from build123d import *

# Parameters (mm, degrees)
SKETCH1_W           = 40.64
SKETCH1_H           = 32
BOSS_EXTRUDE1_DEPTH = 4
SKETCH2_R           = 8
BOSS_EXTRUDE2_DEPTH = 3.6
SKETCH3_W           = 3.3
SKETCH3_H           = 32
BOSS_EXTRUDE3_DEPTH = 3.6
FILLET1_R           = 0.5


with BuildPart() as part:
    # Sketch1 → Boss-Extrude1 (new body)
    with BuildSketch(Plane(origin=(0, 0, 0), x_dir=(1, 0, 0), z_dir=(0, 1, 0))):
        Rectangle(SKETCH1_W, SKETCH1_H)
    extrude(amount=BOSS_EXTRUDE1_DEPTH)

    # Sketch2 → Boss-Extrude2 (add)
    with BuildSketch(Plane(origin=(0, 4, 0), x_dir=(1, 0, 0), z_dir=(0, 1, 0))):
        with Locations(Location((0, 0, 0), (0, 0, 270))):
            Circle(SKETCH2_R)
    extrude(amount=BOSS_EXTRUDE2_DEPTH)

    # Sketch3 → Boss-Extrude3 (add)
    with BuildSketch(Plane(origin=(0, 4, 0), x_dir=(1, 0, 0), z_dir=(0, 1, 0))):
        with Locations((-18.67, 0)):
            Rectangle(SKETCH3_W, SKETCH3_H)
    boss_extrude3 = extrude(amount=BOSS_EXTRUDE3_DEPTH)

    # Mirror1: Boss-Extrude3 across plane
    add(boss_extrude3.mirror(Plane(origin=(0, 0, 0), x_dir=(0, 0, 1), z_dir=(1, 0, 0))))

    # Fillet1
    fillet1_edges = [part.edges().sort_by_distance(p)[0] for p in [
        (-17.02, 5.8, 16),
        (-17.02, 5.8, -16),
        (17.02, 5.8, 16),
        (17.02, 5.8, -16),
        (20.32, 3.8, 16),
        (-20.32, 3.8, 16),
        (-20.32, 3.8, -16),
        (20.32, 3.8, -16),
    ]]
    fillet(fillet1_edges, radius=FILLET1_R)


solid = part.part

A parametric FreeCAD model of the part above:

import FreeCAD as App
import Part
import Sketcher

V = App.Vector


def edges_at(feature, points):
    """Names of the edges that pass closest to the given points."""
    edges = feature.Shape.Edges
    near = lambda p: min(range(len(edges)), key=lambda i: edges[i].distToShape(Part.Vertex(*p))[0])
    return sorted({f"Edge{near(p) + 1}" for p in points})

doc = App.newDocument("Part")
params = doc.addObject("Spreadsheet::Sheet", "Params")
for row, (alias, value) in enumerate([
    ("sketch1_height", "32 mm"),
    ("sketch1_width", "40.64 mm"),
    ("pad1_length", "4 mm"),
    ("sketch2_diameter", "16 mm"),
    ("pad2_length", "3.6 mm"),
    ("sketch3_height", "32 mm"),
    ("sketch3_width", "3.3 mm"),
    ("pad3_length", "3.6 mm"),
    ("fillet_radius", "0.5 mm"),
], start=1):
    params.set(f"A{row}", alias)
    params.set(f"B{row}", "=" + value)
    params.setAlias(f"B{row}", alias)

body = doc.addObject("PartDesign::Body", "Body")

# Sketch on XZ plane
sketch1 = body.newObject("Sketcher::SketchObject", "Sketch")
sketch1.AttachmentSupport = (doc.getObject("XZ_Plane"), [""])
sketch1.MapMode = "FlatFace"
sketch1.addGeometry([
    Part.LineSegment(V(-20.32, -16, 0), V(-20.32, 16, 0)),
    Part.LineSegment(V(-20.32, 16, 0), V(20.32, 16, 0)),
    Part.LineSegment(V(20.32, 16, 0), V(20.32, -16, 0)),
    Part.LineSegment(V(20.32, -16, 0), V(-20.32, -16, 0)),
], False)
sketch1.addConstraint([
    Sketcher.Constraint("Coincident", 0, 2, 1, 1),
    Sketcher.Constraint("Coincident", 1, 2, 2, 1),
    Sketcher.Constraint("Coincident", 2, 2, 3, 1),
    Sketcher.Constraint("Coincident", 3, 2, 0, 1),
    Sketcher.Constraint("Vertical", 0),
    Sketcher.Constraint("Horizontal", 1),
    Sketcher.Constraint("Vertical", 2),
    Sketcher.Constraint("Horizontal", 3),
    Sketcher.Constraint("Symmetric", 0, 2, 2, 2, -1, 1),
    Sketcher.Constraint("DistanceY", 0, 1, 0, 2, 32.0),
    Sketcher.Constraint("DistanceX", 1, 1, 1, 2, 40.64),
])
sketch1.setExpression("Constraints[9]", "Params.sketch1_height")
sketch1.setExpression("Constraints[10]", "Params.sketch1_width")
pad1 = body.newObject("PartDesign::Pad", "Pad")
pad1.Profile = sketch1
pad1.setExpression("Length", "Params.pad1_length")
pad1.Reversed = True

# Sketch on XZ plane
sketch2 = body.newObject("Sketcher::SketchObject", "Sketch001")
sketch2.AttachmentSupport = (doc.getObject("XZ_Plane"), [""])
sketch2.MapMode = "FlatFace"
sketch2.AttachmentOffset = App.Placement(V(0, 0, -4), App.Rotation())
sketch2.addGeometry(Part.Circle(V(0, 0, 0), V(0, 0, 1), 8), False)
sketch2.addConstraint([
    Sketcher.Constraint("Coincident", 0, 3, -1, 1),
    Sketcher.Constraint("Diameter", 0, 16.0),
])
sketch2.setExpression("Constraints[1]", "Params.sketch2_diameter")
pad2 = body.newObject("PartDesign::Pad", "Pad001")
pad2.Profile = sketch2
pad2.setExpression("Length", "Params.pad2_length")
pad2.Reversed = True

# Sketch on XZ plane
sketch3 = body.newObject("Sketcher::SketchObject", "Sketch002")
sketch3.AttachmentSupport = (doc.getObject("XZ_Plane"), [""])
sketch3.MapMode = "FlatFace"
sketch3.AttachmentOffset = App.Placement(V(0, 0, -4), App.Rotation())
sketch3.addGeometry([
    Part.LineSegment(V(-20.32, -16, 0), V(-20.32, 16, 0)),
    Part.LineSegment(V(-20.32, 16, 0), V(-17.02, 16, 0)),
    Part.LineSegment(V(-17.02, 16, 0), V(-17.02, -16, 0)),
    Part.LineSegment(V(-17.02, -16, 0), V(-20.32, -16, 0)),
], False)
sketch3.addConstraint([
    Sketcher.Constraint("Coincident", 0, 2, 1, 1),
    Sketcher.Constraint("Coincident", 1, 2, 2, 1),
    Sketcher.Constraint("Coincident", 2, 2, 3, 1),
    Sketcher.Constraint("Coincident", 3, 2, 0, 1),
    Sketcher.Constraint("Vertical", 0),
    Sketcher.Constraint("Horizontal", 1),
    Sketcher.Constraint("Vertical", 2),
    Sketcher.Constraint("Horizontal", 3),
    Sketcher.Constraint("DistanceY", 0, 1, 0, 2, 32.0),
    Sketcher.Constraint("DistanceX", 1, 1, 1, 2, 3.3),
    Sketcher.Constraint("DistanceY", -1, 1, 0, 2, 16.0),
    Sketcher.Constraint("DistanceX", 0, 2, -1, 1, 20.32),
])
sketch3.setExpression("Constraints[8]", "Params.sketch3_height")
sketch3.setExpression("Constraints[9]", "Params.sketch3_width")
pad3 = body.newObject("PartDesign::Pad", "Pad002")
pad3.Profile = sketch3
pad3.setExpression("Length", "Params.pad3_length")
pad3.Reversed = True
doc.recompute()

mirrored = body.newObject("PartDesign::Mirrored", "Mirrored")
mirrored.Originals = [pad3]
mirrored.MirrorPlane = (doc.getObject("YZ_Plane"), [""])
body.Tip = mirrored
doc.recompute()

fillet = body.newObject("PartDesign::Fillet", "Fillet")
fillet.Base = (mirrored, edges_at(mirrored, [
    (-17.02, 5.8, 16),
    (-17.02, 5.8, -16),
    (17.02, 5.8, 16),
    (17.02, 5.8, -16),
    (20.32, 3.8, 16),
    (-20.32, 3.8, 16),
    (-20.32, 3.8, -16),
    (20.32, 3.8, -16),
]))
fillet.setExpression("Radius", "Params.fillet_radius")

doc.recompute()
